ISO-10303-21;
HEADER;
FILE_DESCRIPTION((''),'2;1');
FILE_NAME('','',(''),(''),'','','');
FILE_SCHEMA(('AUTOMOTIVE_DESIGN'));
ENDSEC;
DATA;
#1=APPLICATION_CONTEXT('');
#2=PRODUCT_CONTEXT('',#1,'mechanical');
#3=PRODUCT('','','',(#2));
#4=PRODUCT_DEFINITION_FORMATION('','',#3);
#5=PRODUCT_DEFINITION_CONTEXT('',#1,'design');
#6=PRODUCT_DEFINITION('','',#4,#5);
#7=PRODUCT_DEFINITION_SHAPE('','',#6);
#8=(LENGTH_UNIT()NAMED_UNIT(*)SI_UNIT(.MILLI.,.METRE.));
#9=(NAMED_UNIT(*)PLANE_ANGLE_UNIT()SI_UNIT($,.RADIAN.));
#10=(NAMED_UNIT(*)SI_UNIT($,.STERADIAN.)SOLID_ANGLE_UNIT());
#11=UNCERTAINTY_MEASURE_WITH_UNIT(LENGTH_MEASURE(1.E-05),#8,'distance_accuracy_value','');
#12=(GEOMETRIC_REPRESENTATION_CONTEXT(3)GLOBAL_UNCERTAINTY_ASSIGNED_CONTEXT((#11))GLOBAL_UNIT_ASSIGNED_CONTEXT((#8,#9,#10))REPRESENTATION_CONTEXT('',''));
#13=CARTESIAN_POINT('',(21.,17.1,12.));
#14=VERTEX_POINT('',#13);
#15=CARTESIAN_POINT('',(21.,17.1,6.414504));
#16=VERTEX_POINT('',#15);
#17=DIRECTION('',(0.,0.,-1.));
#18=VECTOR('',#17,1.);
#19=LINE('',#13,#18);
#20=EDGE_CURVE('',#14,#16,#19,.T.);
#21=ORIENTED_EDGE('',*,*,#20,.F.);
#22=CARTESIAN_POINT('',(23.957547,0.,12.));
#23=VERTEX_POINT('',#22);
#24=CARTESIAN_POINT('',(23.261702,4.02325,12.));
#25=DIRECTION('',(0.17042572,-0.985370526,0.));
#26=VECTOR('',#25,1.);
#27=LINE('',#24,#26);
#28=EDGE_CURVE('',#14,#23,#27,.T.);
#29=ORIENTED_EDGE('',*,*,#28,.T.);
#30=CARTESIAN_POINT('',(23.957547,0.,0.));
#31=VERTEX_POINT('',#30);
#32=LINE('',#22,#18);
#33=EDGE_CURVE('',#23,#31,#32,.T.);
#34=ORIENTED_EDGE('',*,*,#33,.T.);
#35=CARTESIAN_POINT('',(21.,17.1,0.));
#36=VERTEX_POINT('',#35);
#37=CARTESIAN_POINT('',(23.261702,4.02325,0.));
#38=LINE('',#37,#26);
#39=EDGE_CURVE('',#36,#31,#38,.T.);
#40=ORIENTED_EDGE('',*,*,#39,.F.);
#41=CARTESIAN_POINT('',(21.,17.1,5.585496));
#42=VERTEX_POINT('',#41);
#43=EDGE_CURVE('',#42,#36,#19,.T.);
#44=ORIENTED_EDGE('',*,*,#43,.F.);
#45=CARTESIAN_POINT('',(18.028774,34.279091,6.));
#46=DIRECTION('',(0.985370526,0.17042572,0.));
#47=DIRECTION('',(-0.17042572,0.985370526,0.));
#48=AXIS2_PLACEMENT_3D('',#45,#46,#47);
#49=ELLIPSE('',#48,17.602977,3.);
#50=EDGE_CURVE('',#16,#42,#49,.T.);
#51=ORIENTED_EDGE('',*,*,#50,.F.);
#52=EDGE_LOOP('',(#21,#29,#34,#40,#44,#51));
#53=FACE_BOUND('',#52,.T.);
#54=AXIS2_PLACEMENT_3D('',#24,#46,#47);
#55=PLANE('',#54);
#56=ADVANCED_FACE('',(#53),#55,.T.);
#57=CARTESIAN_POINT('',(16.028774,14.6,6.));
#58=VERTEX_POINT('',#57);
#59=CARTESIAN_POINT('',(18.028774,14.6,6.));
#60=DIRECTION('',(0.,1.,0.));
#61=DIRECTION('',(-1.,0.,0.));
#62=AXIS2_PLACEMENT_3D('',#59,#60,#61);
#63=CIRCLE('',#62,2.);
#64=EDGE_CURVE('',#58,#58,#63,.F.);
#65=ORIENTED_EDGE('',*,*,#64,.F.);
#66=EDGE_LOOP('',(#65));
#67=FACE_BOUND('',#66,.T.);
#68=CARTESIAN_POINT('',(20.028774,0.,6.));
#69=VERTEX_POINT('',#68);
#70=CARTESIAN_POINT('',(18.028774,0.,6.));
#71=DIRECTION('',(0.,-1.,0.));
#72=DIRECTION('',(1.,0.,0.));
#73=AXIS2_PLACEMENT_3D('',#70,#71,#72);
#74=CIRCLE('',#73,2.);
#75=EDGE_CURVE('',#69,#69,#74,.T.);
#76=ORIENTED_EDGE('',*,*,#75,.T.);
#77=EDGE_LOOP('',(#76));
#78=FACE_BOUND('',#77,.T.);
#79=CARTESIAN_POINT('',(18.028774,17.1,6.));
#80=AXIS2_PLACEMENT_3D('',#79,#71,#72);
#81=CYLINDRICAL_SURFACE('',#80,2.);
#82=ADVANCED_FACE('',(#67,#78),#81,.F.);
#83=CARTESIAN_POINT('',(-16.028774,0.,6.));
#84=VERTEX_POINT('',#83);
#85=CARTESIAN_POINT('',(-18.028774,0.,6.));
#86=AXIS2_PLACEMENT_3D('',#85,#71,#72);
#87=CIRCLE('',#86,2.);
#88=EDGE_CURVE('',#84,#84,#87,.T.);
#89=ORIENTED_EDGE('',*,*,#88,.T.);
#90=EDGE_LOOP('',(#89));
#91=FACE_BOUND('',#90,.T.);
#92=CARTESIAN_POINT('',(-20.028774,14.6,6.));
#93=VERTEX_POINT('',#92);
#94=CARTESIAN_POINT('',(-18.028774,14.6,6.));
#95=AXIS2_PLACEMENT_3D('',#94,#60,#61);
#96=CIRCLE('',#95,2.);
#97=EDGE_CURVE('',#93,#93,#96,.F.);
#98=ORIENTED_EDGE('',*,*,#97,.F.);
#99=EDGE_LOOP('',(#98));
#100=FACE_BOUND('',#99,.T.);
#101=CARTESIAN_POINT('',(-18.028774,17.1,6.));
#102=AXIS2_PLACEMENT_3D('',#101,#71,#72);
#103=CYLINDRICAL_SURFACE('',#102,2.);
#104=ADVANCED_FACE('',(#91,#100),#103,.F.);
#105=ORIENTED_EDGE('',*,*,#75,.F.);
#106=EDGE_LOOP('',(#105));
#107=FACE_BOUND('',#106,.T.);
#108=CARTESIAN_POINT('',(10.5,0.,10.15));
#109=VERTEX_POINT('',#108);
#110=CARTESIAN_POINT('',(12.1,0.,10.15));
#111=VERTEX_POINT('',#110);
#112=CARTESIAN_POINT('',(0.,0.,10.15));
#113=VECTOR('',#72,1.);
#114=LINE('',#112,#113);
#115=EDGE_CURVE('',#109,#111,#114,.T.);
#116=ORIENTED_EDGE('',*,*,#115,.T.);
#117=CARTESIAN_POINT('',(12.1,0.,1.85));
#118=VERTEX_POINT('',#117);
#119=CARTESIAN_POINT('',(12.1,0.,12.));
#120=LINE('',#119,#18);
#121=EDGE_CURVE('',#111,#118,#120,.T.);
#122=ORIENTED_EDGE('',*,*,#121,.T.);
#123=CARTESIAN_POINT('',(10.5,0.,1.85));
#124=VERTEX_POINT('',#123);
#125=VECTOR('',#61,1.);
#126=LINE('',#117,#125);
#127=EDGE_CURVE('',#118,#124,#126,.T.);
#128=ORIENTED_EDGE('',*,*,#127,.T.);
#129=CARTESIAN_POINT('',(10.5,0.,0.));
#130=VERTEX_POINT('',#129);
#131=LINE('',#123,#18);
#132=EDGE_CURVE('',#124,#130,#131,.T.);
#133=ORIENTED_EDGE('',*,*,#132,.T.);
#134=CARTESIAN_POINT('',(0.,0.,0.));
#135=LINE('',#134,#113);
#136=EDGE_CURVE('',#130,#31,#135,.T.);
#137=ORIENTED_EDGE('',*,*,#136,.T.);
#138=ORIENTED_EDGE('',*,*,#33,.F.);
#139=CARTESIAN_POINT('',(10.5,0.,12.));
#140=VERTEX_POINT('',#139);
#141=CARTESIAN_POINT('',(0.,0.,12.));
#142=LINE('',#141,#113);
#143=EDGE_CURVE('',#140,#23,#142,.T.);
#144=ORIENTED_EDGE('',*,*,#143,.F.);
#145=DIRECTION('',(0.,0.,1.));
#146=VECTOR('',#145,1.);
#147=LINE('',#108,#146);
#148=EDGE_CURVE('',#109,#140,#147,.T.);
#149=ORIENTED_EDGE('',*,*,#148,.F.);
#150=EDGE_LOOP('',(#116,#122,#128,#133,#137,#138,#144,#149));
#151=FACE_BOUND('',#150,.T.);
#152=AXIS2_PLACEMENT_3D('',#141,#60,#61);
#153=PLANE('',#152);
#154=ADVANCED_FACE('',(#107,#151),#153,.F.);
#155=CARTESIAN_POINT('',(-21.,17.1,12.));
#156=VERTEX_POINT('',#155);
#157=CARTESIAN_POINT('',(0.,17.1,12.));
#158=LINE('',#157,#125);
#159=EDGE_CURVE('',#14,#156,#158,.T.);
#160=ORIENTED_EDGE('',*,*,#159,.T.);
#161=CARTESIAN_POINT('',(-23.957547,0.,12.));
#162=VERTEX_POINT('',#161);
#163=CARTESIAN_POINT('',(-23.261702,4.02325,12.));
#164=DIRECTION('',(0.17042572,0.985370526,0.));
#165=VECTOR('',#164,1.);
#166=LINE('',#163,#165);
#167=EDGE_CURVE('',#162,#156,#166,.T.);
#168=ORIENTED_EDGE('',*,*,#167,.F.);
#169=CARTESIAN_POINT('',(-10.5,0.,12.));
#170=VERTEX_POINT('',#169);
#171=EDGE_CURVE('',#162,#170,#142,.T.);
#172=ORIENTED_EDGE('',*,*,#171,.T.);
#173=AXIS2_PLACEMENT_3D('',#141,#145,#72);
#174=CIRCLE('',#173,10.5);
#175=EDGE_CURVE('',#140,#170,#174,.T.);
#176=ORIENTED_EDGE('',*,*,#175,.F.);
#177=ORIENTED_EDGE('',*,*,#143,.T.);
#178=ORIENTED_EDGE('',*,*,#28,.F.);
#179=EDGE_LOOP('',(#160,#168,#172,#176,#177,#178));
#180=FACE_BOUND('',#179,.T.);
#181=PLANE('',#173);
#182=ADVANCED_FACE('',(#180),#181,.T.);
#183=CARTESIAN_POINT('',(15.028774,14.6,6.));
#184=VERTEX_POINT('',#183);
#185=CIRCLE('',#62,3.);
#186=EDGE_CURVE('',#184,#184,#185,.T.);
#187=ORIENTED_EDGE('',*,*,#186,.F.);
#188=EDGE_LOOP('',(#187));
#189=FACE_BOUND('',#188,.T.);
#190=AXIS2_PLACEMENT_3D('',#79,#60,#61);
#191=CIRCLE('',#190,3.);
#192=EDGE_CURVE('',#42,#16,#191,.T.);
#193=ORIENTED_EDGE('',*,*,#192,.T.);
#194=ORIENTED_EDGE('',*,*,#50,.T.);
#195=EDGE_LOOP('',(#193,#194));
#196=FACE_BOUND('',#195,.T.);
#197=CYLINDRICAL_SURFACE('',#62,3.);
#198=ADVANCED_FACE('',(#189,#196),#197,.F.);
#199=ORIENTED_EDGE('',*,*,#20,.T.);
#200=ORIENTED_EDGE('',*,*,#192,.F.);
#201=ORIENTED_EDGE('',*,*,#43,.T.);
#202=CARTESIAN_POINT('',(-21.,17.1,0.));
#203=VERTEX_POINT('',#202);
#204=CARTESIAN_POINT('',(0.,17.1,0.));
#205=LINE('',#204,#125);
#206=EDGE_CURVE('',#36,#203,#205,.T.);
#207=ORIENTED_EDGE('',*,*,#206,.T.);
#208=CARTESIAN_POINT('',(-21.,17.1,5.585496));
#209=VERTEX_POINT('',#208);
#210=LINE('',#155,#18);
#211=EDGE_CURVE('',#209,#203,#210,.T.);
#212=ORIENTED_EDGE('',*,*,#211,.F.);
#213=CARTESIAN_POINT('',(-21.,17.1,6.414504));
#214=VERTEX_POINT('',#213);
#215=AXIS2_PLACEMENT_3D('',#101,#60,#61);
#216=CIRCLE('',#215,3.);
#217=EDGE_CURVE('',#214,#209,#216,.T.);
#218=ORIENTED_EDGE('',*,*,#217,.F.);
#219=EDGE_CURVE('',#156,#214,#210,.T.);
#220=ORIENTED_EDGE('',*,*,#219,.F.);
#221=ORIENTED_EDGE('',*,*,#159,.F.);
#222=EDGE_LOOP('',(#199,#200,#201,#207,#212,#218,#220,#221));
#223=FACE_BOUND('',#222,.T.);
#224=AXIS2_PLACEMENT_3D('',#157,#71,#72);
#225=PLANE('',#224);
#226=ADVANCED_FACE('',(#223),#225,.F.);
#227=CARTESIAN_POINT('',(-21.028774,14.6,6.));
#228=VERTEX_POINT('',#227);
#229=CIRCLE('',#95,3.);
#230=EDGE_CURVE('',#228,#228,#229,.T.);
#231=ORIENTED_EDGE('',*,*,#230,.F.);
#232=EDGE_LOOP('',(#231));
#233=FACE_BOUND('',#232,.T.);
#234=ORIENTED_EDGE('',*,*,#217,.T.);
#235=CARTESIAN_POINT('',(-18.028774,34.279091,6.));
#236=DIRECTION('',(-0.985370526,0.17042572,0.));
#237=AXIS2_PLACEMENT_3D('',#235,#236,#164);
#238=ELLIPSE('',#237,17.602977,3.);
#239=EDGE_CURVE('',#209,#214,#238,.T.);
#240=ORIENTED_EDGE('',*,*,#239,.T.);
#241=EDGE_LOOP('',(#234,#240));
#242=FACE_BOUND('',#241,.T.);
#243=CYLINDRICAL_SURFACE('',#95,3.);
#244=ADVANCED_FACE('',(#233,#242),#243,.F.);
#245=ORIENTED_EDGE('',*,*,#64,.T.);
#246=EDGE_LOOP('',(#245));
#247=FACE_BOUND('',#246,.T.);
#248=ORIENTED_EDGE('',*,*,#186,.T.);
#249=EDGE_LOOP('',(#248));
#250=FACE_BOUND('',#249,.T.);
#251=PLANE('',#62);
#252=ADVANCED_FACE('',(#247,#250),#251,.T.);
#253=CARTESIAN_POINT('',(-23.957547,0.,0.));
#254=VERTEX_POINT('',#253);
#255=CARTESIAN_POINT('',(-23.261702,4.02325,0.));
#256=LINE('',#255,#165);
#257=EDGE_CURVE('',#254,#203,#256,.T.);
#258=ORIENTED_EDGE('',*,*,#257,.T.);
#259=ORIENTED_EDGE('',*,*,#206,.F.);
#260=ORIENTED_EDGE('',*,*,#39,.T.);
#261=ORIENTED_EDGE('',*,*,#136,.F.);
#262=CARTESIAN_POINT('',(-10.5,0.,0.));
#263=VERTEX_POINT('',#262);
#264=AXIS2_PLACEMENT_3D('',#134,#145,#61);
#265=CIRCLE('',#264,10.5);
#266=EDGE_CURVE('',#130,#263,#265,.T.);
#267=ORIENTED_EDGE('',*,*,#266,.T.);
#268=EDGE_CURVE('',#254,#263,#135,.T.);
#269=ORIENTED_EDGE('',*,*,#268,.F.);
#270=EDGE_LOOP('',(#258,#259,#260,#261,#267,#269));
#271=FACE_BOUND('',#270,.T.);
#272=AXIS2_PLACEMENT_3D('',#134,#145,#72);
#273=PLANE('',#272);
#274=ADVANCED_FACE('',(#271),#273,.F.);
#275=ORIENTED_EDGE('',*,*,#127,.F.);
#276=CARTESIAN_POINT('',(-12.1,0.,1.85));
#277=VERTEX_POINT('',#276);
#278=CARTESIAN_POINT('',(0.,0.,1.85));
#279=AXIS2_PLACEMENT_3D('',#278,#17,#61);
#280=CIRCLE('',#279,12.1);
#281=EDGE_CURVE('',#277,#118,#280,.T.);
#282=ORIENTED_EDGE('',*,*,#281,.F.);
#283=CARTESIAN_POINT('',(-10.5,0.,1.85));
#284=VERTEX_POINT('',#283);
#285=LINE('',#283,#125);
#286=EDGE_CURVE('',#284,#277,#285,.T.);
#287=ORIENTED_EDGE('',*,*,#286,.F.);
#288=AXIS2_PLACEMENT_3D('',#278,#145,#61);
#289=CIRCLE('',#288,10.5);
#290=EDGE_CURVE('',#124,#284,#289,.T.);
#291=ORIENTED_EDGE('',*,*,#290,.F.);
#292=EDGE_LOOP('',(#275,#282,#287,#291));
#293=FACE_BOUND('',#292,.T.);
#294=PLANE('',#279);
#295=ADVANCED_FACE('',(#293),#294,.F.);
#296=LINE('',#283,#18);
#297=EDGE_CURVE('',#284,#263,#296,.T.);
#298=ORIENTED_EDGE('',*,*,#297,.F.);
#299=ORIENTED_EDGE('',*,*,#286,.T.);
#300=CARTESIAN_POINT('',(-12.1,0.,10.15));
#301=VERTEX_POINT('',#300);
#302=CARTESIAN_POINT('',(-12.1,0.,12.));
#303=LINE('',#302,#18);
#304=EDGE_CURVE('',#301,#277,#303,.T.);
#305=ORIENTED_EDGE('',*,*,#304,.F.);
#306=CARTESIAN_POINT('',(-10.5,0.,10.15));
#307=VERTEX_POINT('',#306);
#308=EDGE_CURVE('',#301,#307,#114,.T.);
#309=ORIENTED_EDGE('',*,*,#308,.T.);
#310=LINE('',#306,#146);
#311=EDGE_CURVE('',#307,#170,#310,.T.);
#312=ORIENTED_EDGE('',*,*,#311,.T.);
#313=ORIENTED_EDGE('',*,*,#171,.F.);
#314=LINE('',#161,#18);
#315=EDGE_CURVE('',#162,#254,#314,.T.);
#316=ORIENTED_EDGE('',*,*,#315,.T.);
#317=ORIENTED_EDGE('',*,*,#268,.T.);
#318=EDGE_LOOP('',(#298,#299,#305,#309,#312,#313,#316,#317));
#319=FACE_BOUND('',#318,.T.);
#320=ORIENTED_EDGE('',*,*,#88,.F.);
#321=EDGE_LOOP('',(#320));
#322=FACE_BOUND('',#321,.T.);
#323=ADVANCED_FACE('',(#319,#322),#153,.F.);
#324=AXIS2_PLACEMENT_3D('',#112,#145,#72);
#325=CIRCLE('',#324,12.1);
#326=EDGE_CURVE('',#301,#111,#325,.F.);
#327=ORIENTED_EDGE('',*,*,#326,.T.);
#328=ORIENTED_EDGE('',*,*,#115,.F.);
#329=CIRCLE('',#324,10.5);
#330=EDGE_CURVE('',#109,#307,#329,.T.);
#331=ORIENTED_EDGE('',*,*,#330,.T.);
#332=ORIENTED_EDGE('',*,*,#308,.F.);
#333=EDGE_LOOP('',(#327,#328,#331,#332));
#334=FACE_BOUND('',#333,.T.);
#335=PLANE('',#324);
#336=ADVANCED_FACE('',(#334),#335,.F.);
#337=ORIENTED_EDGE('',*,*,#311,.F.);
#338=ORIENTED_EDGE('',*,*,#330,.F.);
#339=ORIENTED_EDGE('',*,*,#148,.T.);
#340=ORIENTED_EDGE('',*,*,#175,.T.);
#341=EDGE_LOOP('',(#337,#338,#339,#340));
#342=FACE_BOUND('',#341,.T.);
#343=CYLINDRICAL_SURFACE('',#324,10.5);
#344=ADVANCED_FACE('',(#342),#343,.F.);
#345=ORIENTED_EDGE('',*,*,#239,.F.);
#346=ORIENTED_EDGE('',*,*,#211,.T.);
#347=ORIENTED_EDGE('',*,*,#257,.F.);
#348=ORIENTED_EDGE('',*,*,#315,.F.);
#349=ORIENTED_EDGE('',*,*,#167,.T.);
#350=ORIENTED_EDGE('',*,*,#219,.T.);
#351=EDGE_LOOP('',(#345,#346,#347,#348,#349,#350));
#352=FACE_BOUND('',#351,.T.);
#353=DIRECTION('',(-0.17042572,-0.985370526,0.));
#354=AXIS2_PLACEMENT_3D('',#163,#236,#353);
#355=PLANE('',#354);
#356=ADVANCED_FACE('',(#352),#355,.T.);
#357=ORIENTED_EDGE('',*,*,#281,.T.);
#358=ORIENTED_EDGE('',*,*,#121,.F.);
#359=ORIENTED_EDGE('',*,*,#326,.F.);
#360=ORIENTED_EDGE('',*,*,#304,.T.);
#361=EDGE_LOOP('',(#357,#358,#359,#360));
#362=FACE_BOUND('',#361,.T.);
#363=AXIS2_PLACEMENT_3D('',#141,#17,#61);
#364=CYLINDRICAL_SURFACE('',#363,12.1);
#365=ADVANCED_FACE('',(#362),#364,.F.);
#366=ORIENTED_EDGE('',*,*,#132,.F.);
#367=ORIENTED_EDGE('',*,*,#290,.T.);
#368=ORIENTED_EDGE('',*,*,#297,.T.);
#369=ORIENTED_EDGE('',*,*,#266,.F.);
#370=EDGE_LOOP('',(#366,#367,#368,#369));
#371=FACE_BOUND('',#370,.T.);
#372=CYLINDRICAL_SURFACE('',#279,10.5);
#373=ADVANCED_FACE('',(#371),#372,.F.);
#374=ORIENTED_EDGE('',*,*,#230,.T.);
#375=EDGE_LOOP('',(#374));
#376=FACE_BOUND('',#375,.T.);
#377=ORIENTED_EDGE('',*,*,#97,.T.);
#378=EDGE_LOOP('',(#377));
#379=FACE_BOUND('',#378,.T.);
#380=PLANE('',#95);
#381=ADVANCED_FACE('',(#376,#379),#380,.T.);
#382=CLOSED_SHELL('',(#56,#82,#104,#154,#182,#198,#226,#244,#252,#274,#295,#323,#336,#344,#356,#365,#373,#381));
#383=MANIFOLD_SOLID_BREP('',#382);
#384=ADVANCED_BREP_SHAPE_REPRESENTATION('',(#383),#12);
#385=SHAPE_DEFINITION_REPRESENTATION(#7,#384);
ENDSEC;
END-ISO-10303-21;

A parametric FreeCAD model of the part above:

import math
import FreeCAD as App
import Part
import Sketcher
from FreeCAD import Vector

doc = App.newDocument("Part")
body = doc.addObject("PartDesign::Body", "Body")

sketch1 = doc.addObject("Sketcher::SketchObject", "Sketch")
body.addObject(sketch1)
sketch1.AttachmentSupport = (doc.XY_Plane, [""])
sketch1.MapMode = "FlatFace"
sketch1.addGeometry(Part.LineSegment(Vector(21, 17, 0), Vector(-21, 17, 0)), False)
sketch1.addGeometry(Part.LineSegment(Vector(-21, 17, 0), Vector(-24, 0, 0)), False)
sketch1.addGeometry(Part.LineSegment(Vector(-24, 0, 0), Vector(-12, 0, 0)), False)
sketch1.addGeometry(Part.ArcOfCircle(Part.Circle(Vector(0, 0, 0), Vector(0, 0, 1), 12), math.radians(0), math.radians(180)), False)
sketch1.addGeometry(Part.LineSegment(Vector(12, 0, 0), Vector(24, 0, 0)), False)
sketch1.addGeometry(Part.LineSegment(Vector(24, 0, 0), Vector(21, 17, 0)), False)
sketch1.addConstraint(Sketcher.Constraint("Coincident", 0, 2, 1, 1))
sketch1.addConstraint(Sketcher.Constraint("Coincident", 1, 2, 2, 1))
sketch1.addConstraint(Sketcher.Constraint("Coincident", 2, 2, 3, 2))
sketch1.addConstraint(Sketcher.Constraint("Coincident", 3, 1, 4, 1))
sketch1.addConstraint(Sketcher.Constraint("Coincident", 4, 2, 5, 1))
sketch1.addConstraint(Sketcher.Constraint("Coincident", 5, 2, 0, 1))
sketch1.addConstraint(Sketcher.Constraint("Horizontal", 0))
sketch1.addConstraint(Sketcher.Constraint("Horizontal", 2))
sketch1.addConstraint(Sketcher.Constraint("Horizontal", 4))
sketch1.addConstraint(Sketcher.Constraint("Coincident", 3, 3, -1, 1))
sketch1.addConstraint(Sketcher.Constraint("Symmetric", 1, 2, 4, 2, -1, 1))
sketch1.addConstraint(Sketcher.Constraint("PointOnObject", 1, 2, -1))
sketch1.addConstraint(Sketcher.Constraint("Equal", 1, 5))
sketch1.addConstraint(Sketcher.Constraint("Radius", 3, 12.1))
sketch1.addConstraint(Sketcher.Constraint("DistanceX", 0, 2, 0, 1, 42.0))
sketch1.addConstraint(Sketcher.Constraint("DistanceY", -1, 1, 0, 2, 17.1))
sketch1.addConstraint(Sketcher.Constraint("Distance", 1, 17.353878))
pad1 = doc.addObject("PartDesign::Pad", "Pad")
body.addObject(pad1)
pad1.Profile = sketch1
pad1.Length = 12

sketch2 = doc.addObject("Sketcher::SketchObject", "Sketch001")
body.addObject(sketch2)
sketch2.AttachmentSupport = (doc.XZ_Plane, [""])
sketch2.MapMode = "FlatFace"
sketch2.addGeometry(Part.Circle(Vector(-18, 6, 0), Vector(0, 0, 1), 2), False)
sketch2.addGeometry(Part.Circle(Vector(18, 6, 0), Vector(0, 0, 1), 2), False)
sketch2.addConstraint(Sketcher.Constraint("Equal", 0, 1))
sketch2.addConstraint(Sketcher.Constraint("Symmetric", 0, 3, 1, 3, -2))
sketch2.addConstraint(Sketcher.Constraint("Diameter", 0, 4.0))
sketch2.addConstraint(Sketcher.Constraint("DistanceY", -1, 1, 0, 3, 6.0))
sketch2.addConstraint(Sketcher.Constraint("DistanceX", 0, 3, -1, 1, 18.028774))
pocket1 = doc.addObject("PartDesign::Pocket", "Pocket")
body.addObject(pocket1)
pocket1.Profile = sketch2
pocket1.Type = "ThroughAll"

sketch3 = doc.addObject("Sketcher::SketchObject", "Sketch002")
body.addObject(sketch3)
sketch3.AttachmentSupport = (doc.XZ_Plane, [""])
sketch3.MapMode = "FlatFace"
sketch3.AttachmentOffset = App.Placement(Vector(0, 0, -17.1), App.Rotation())
sketch3.addGeometry(Part.Circle(Vector(-18, 6, 0), Vector(0, 0, 1), 3), False)
sketch3.addGeometry(Part.Circle(Vector(18, 6, 0), Vector(0, 0, 1), 3), False)
sketch3.addConstraint(Sketcher.Constraint("Equal", 0, 1))
sketch3.addConstraint(Sketcher.Constraint("Symmetric", 0, 3, 1, 3, -2))
sketch3.addConstraint(Sketcher.Constraint("Diameter", 0, 6.0))
sketch3.addConstraint(Sketcher.Constraint("DistanceY", -1, 1, 0, 3, 6.0))
sketch3.addConstraint(Sketcher.Constraint("DistanceX", 0, 3, -1, 1, 18.028774))
pocket2 = doc.addObject("PartDesign::Pocket", "Pocket001")
body.addObject(pocket2)
pocket2.Profile = sketch3
pocket2.Length = 2.5
pocket2.Reversed = True

sketch4 = doc.addObject("Sketcher::SketchObject", "Sketch003")
body.addObject(sketch4)
sketch4.AttachmentSupport = (doc.XY_Plane, [""])
sketch4.MapMode = "FlatFace"
sketch4.AttachmentOffset = App.Placement(Vector(0, 0, 10.15), App.Rotation())
sketch4.addGeometry(Part.ArcOfCircle(Part.Circle(Vector(0, 0, 0), Vector(0, 0, 1), 10.5), math.radians(0), math.radians(180)), False)
sketch4.addGeometry(Part.LineSegment(Vector(10.5, 0, 0), Vector(12.1, 0, 0)), False)
sketch4.addGeometry(Part.ArcOfCircle(Part.Circle(Vector(0, 0, 0), Vector(0, 0, 1), 12.1), math.radians(0), math.radians(180)), False)
sketch4.addGeometry(Part.LineSegment(Vector(-12.1, 0, 0), Vector(-10.5, 0, 0)), False)
sketch4.addConstraint(Sketcher.Constraint("Coincident", 0, 1, 1, 1))
sketch4.addConstraint(Sketcher.Constraint("Coincident", 1, 2, 2, 1))
sketch4.addConstraint(Sketcher.Constraint("Coincident", 2, 2, 3, 1))
sketch4.addConstraint(Sketcher.Constraint("Coincident", 3, 2, 0, 2))
sketch4.addConstraint(Sketcher.Constraint("Horizontal", 1))
sketch4.addConstraint(Sketcher.Constraint("Horizontal", 3))
sketch4.addConstraint(Sketcher.Constraint("Coincident", 0, 3, -1, 1))
sketch4.addConstraint(Sketcher.Constraint("Coincident", 2, 3, -1, 1))
sketch4.addConstraint(Sketcher.Constraint("PointOnObject", 0, 1, -1))
sketch4.addConstraint(Sketcher.Constraint("PointOnObject", 2, 2, -1))
sketch4.addConstraint(Sketcher.Constraint("Radius", 0, 10.5))
sketch4.addConstraint(Sketcher.Constraint("Radius", 2, 12.1))
pad2 = doc.addObject("PartDesign::Pad", "Pad001")
body.addObject(pad2)
pad2.Profile = sketch4
pad2.Length = 1.85

sketch5 = doc.addObject("Sketcher::SketchObject", "Sketch004")
body.addObject(sketch5)
sketch5.AttachmentSupport = (doc.XY_Plane, [""])
sketch5.MapMode = "FlatFace"
sketch5.addGeometry(Part.LineSegment(Vector(-10.5, 0, 0), Vector(-12.1, 0, 0)), False)
sketch5.addGeometry(Part.ArcOfCircle(Part.Circle(Vector(0, 0, 0), Vector(0, 0, 1), 12.1), math.radians(0), math.radians(180)), False)
sketch5.addGeometry(Part.LineSegment(Vector(12.1, 0, 0), Vector(10.5, 0, 0)), False)
sketch5.addGeometry(Part.ArcOfCircle(Part.Circle(Vector(0, 0, 0), Vector(0, 0, 1), 10.5), math.radians(0), math.radians(180)), False)
sketch5.addConstraint(Sketcher.Constraint("Coincident", 0, 2, 1, 2))
sketch5.addConstraint(Sketcher.Constraint("Coincident", 1, 1, 2, 1))
sketch5.addConstraint(Sketcher.Constraint("Coincident", 2, 2, 3, 1))
sketch5.addConstraint(Sketcher.Constraint("Coincident", 3, 2, 0, 1))
sketch5.addConstraint(Sketcher.Constraint("Horizontal", 0))
sketch5.addConstraint(Sketcher.Constraint("Horizontal", 2))
sketch5.addConstraint(Sketcher.Constraint("Coincident", 1, 3, -1, 1))
sketch5.addConstraint(Sketcher.Constraint("Coincident", 3, 3, -1, 1))
sketch5.addConstraint(Sketcher.Constraint("PointOnObject", 0, 2, -1))
sketch5.addConstraint(Sketcher.Constraint("PointOnObject", 1, 1, -1))
sketch5.addConstraint(Sketcher.Constraint("Radius", 1, 12.1))
sketch5.addConstraint(Sketcher.Constraint("Radius", 3, 10.5))
pad3 = doc.addObject("PartDesign::Pad", "Pad002")
body.addObject(pad3)
pad3.Profile = sketch5
pad3.Length = 1.85

doc.recompute()
